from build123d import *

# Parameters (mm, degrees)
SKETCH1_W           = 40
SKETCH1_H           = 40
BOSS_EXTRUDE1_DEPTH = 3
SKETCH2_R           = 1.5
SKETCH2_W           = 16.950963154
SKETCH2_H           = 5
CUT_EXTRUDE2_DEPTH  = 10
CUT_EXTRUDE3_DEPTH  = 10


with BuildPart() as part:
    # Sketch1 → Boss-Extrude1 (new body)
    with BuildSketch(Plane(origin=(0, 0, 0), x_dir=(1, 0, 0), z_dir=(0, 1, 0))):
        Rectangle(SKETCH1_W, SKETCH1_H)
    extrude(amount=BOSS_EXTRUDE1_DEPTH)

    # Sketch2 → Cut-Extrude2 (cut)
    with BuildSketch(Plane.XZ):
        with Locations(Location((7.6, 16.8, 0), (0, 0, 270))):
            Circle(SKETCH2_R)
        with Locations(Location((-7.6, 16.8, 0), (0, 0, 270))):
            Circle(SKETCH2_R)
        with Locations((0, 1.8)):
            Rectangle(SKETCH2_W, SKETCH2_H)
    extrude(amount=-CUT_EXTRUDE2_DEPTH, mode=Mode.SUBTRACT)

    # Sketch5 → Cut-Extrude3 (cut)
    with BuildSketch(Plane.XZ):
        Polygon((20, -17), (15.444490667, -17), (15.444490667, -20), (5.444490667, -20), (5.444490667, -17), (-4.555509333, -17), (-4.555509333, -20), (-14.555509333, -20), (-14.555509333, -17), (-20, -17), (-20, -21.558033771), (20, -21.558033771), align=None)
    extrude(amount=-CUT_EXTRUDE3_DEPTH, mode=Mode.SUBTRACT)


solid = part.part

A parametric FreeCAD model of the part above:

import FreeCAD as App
import Part
import Sketcher

doc = App.newDocument("Part")
body = doc.addObject("PartDesign::Body", "Body")

sketch1 = doc.addObject("Sketcher::SketchObject", "Sketch")
body.addObject(sketch1)
sketch1.AttachmentSupport = (doc.XZ_Plane, [""])
sketch1.MapMode = "FlatFace"
sketch1.addGeometry([
    Part.LineSegment(App.Vector(-20, -20, 0), App.Vector(-20, 20, 0)),
    Part.LineSegment(App.Vector(-20, 20, 0), App.Vector(20, 20, 0)),
    Part.LineSegment(App.Vector(20, 20, 0), App.Vector(20, -20, 0)),
    Part.LineSegment(App.Vector(20, -20, 0), App.Vector(-20, -20, 0)),
], False)
sketch1.addConstraint([
    Sketcher.Constraint("Coincident", 0, 2, 1, 1),
    Sketcher.Constraint("Coincident", 1, 2, 2, 1),
    Sketcher.Constraint("Coincident", 2, 2, 3, 1),
    Sketcher.Constraint("Coincident", 3, 2, 0, 1),
    Sketcher.Constraint("Vertical", 0),
    Sketcher.Constraint("Horizontal", 1),
    Sketcher.Constraint("Vertical", 2),
    Sketcher.Constraint("Horizontal", 3),
    Sketcher.Constraint("Symmetric", 0, 2, 2, 2, -1, 1),
    Sketcher.Constraint("Equal", 3, 0),
    Sketcher.Constraint("DistanceX", 1, 1, 1, 2, 40.0),
])
pad1 = doc.addObject("PartDesign::Pad", "Pad")
body.addObject(pad1)
pad1.Profile = sketch1
pad1.Length = 3
pad1.Reversed = True

sketch2 = doc.addObject("Sketcher::SketchObject", "Sketch001")
body.addObject(sketch2)
sketch2.AttachmentSupport = (doc.XZ_Plane, [""])
sketch2.MapMode = "FlatFace"
sketch2.addGeometry([
    Part.Circle(App.Vector(7.6, 16.8, 0), App.Vector(0, 0, 1), 1.5),
    Part.Circle(App.Vector(-7.6, 16.8, 0), App.Vector(0, 0, 1), 1.5),
    Part.LineSegment(App.Vector(-8.5, 4.3, 0), App.Vector(-8.5, -0.7, 0)),
    Part.LineSegment(App.Vector(-8.5, -0.7, 0), App.Vector(8.5, -0.7, 0)),
    Part.LineSegment(App.Vector(8.5, -0.7, 0), App.Vector(8.5, 4.3, 0)),
    Part.LineSegment(App.Vector(8.5, 4.3, 0), App.Vector(-8.5, 4.3, 0)),
], False)
sketch2.addConstraint([
    Sketcher.Constraint("Coincident", 2, 2, 3, 1),
    Sketcher.Constraint("Coincident", 3, 2, 4, 1),
    Sketcher.Constraint("Coincident", 4, 2, 5, 1),
    Sketcher.Constraint("Coincident", 5, 2, 2, 1),
    Sketcher.Constraint("Vertical", 2),
    Sketcher.Constraint("Horizontal", 3),
    Sketcher.Constraint("Vertical", 4),
    Sketcher.Constraint("Horizontal", 5),
    Sketcher.Constraint("Equal", 0, 1),
    Sketcher.Constraint("Symmetric", 0, 3, 1, 3, -2),
    Sketcher.Constraint("Diameter", 0, 3.0),
    Sketcher.Constraint("DistanceY", 2, 2, 2, 1, 5.0),
    Sketcher.Constraint("DistanceX", -1, 1, 0, 3, 7.6),
    Sketcher.Constraint("DistanceY", -1, 1, 0, 3, 16.8),
    Sketcher.Constraint("DistanceY", 2, 2, -1, 1, 0.7),
    Sketcher.Constraint("DistanceX", 3, 1, 3, 2, 16.950963),
    Sketcher.Constraint("DistanceX", 2, 2, -1, 1, 8.475482),
])
pocket1 = doc.addObject("PartDesign::Pocket", "Pocket")
body.addObject(pocket1)
pocket1.Profile = sketch2
pocket1.Length = 10

sketch3 = doc.addObject("Sketcher::SketchObject", "Sketch002")
body.addObject(sketch3)
sketch3.AttachmentSupport = (doc.XZ_Plane, [""])
sketch3.MapMode = "FlatFace"
sketch3.addGeometry([
    Part.LineSegment(App.Vector(20, -17, 0), App.Vector(15.4, -17, 0)),
    Part.LineSegment(App.Vector(15.4, -17, 0), App.Vector(15.4, -20, 0)),
    Part.LineSegment(App.Vector(15.4, -20, 0), App.Vector(5.4, -20, 0)),
    Part.LineSegment(App.Vector(5.4, -20, 0), App.Vector(5.4, -17, 0)),
    Part.LineSegment(App.Vector(5.4, -17, 0), App.Vector(-4.6, -17, 0)),
    Part.LineSegment(App.Vector(-4.6, -17, 0), App.Vector(-4.6, -20, 0)),
    Part.LineSegment(App.Vector(-4.6, -20, 0), App.Vector(-14.6, -20, 0)),
    Part.LineSegment(App.Vector(-14.6, -20, 0), App.Vector(-14.6, -17, 0)),
    Part.LineSegment(App.Vector(-14.6, -17, 0), App.Vector(-20, -17, 0)),
    Part.LineSegment(App.Vector(-20, -17, 0), App.Vector(-20, -21.6, 0)),
    Part.LineSegment(App.Vector(-20, -21.6, 0), App.Vector(20, -21.6, 0)),
    Part.LineSegment(App.Vector(20, -21.6, 0), App.Vector(20, -17, 0)),
], False)
sketch3.addConstraint([
    Sketcher.Constraint("Coincident", 0, 2, 1, 1),
    Sketcher.Constraint("Coincident", 1, 2, 2, 1),
    Sketcher.Constraint("Coincident", 2, 2, 3, 1),
    Sketcher.Constraint("Coincident", 3, 2, 4, 1),
    Sketcher.Constraint("Coincident", 4, 2, 5, 1),
    Sketcher.Constraint("Coincident", 5, 2, 6, 1),
    Sketcher.Constraint("Coincident", 6, 2, 7, 1),
    Sketcher.Constraint("Coincident", 7, 2, 8, 1),
    Sketcher.Constraint("Coincident", 8, 2, 9, 1),
    Sketcher.Constraint("Coincident", 9, 2, 10, 1),
    Sketcher.Constraint("Coincident", 10, 2, 11, 1),
    Sketcher.Constraint("Coincident", 11, 2, 0, 1),
    Sketcher.Constraint("Horizontal", 0),
    Sketcher.Constraint("Vertical", 1),
    Sketcher.Constraint("Horizontal", 2),
    Sketcher.Constraint("Vertical", 3),
    Sketcher.Constraint("Horizontal", 4),
    Sketcher.Constraint("Vertical", 5),
    Sketcher.Constraint("Horizontal", 6),
    Sketcher.Constraint("Vertical", 7),
    Sketcher.Constraint("Horizontal", 8),
    Sketcher.Constraint("Vertical", 9),
    Sketcher.Constraint("Horizontal", 10),
    Sketcher.Constraint("Vertical", 11),
    Sketcher.Constraint("Symmetric", 8, 2, 11, 2, -2),
    Sketcher.Constraint("Horizontal", 0, 2, 3, 2),
    Sketcher.Constraint("Horizontal", 2, 2, 5, 2),
    Sketcher.Constraint("Equal", 2, 4),
    Sketcher.Constraint("Equal", 4, 6),
    Sketcher.Constraint("DistanceX", 2, 2, 2, 1, 10.0),
    Sketcher.Constraint("DistanceX", 10, 1, 10, 2, 40.0),
    Sketcher.Constraint("DistanceY", 1, 2, 1, 1, 3.0),
    Sketcher.Constraint("DistanceY", 0, 2, -1, 1, 17.0),
    Sketcher.Constraint("DistanceX", 0, 2, 0, 1, 4.555509),
    Sketcher.Constraint("DistanceY", 9, 2, 9, 1, 4.558034),
])
pocket2 = doc.addObject("PartDesign::Pocket", "Pocket001")
body.addObject(pocket2)
pocket2.Profile = sketch3
pocket2.Length = 10

doc.recompute()
